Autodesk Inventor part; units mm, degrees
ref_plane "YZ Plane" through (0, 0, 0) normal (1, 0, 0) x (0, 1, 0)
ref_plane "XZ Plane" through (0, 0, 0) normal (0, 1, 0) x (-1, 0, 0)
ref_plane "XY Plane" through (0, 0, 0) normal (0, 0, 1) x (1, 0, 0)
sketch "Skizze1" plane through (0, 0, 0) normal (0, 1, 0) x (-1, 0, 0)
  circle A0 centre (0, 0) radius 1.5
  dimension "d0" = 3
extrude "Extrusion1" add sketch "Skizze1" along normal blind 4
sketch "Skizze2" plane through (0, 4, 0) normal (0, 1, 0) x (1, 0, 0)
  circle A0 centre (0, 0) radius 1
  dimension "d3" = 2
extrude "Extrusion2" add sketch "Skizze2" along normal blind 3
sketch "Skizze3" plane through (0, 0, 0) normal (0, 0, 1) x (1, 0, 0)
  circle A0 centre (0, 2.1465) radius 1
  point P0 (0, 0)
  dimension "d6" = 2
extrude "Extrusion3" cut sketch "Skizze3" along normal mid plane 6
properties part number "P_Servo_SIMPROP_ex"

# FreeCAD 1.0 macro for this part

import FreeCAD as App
import Part
import Sketcher

V = App.Vector
Q = App.Units.Quantity

doc = App.newDocument("Part")
body = doc.addObject("PartDesign::Body", "Body")

sketch1 = doc.addObject("Sketcher::SketchObject", "Sketch")
body.addObject(sketch1)
sketch1.AttachmentSupport = (doc.XZ_Plane, [""])
sketch1.MapMode = "FlatFace"
sketch1.addGeometry(Part.Circle(V(0, 0, 0), V(0, 0, 1), 1.5), False)
sketch1.addConstraint([
    Sketcher.Constraint("Coincident", 0, 3, -1, 1),
    Sketcher.Constraint("Diameter", 0, Q("3 mm")),
])
pad1 = doc.addObject("PartDesign::Pad", "Pad")
body.addObject(pad1)
pad1.Profile = sketch1
pad1.Length = 4
pad1.Reversed = True

sketch2 = doc.addObject("Sketcher::SketchObject", "Sketch001")
body.addObject(sketch2)
sketch2.AttachmentSupport = (doc.XZ_Plane, [""])
sketch2.MapMode = "FlatFace"
sketch2.AttachmentOffset = App.Placement(V(0, 0, -4), App.Rotation())
sketch2.addGeometry(Part.Circle(V(0, 0, 0), V(0, 0, 1), 1), False)
sketch2.addConstraint([
    Sketcher.Constraint("Coincident", 0, 3, -1, 1),
    Sketcher.Constraint("Diameter", 0, Q("2 mm")),
])
pad2 = doc.addObject("PartDesign::Pad", "Pad001")
body.addObject(pad2)
pad2.Profile = sketch2
pad2.Length = 3
pad2.Reversed = True

sketch3 = doc.addObject("Sketcher::SketchObject", "Sketch002")
body.addObject(sketch3)
sketch3.AttachmentSupport = (doc.XY_Plane, [""])
sketch3.MapMode = "FlatFace"
sketch3.addGeometry(Part.Circle(V(0, 2.1, 0), V(0, 0, 1), 1), False)
sketch3.addConstraint([
    Sketcher.Constraint("PointOnObject", 0, 3, -2),
    Sketcher.Constraint("Diameter", 0, Q("2 mm")),
    Sketcher.Constraint("DistanceY", -1, 1, 0, 3, Q("2.1465 mm")),
])
pocket1 = doc.addObject("PartDesign::Pocket", "Pocket")
body.addObject(pocket1)
pocket1.Profile = sketch3
pocket1.Length = 6
pocket1.Midplane = True

doc.recompute()
